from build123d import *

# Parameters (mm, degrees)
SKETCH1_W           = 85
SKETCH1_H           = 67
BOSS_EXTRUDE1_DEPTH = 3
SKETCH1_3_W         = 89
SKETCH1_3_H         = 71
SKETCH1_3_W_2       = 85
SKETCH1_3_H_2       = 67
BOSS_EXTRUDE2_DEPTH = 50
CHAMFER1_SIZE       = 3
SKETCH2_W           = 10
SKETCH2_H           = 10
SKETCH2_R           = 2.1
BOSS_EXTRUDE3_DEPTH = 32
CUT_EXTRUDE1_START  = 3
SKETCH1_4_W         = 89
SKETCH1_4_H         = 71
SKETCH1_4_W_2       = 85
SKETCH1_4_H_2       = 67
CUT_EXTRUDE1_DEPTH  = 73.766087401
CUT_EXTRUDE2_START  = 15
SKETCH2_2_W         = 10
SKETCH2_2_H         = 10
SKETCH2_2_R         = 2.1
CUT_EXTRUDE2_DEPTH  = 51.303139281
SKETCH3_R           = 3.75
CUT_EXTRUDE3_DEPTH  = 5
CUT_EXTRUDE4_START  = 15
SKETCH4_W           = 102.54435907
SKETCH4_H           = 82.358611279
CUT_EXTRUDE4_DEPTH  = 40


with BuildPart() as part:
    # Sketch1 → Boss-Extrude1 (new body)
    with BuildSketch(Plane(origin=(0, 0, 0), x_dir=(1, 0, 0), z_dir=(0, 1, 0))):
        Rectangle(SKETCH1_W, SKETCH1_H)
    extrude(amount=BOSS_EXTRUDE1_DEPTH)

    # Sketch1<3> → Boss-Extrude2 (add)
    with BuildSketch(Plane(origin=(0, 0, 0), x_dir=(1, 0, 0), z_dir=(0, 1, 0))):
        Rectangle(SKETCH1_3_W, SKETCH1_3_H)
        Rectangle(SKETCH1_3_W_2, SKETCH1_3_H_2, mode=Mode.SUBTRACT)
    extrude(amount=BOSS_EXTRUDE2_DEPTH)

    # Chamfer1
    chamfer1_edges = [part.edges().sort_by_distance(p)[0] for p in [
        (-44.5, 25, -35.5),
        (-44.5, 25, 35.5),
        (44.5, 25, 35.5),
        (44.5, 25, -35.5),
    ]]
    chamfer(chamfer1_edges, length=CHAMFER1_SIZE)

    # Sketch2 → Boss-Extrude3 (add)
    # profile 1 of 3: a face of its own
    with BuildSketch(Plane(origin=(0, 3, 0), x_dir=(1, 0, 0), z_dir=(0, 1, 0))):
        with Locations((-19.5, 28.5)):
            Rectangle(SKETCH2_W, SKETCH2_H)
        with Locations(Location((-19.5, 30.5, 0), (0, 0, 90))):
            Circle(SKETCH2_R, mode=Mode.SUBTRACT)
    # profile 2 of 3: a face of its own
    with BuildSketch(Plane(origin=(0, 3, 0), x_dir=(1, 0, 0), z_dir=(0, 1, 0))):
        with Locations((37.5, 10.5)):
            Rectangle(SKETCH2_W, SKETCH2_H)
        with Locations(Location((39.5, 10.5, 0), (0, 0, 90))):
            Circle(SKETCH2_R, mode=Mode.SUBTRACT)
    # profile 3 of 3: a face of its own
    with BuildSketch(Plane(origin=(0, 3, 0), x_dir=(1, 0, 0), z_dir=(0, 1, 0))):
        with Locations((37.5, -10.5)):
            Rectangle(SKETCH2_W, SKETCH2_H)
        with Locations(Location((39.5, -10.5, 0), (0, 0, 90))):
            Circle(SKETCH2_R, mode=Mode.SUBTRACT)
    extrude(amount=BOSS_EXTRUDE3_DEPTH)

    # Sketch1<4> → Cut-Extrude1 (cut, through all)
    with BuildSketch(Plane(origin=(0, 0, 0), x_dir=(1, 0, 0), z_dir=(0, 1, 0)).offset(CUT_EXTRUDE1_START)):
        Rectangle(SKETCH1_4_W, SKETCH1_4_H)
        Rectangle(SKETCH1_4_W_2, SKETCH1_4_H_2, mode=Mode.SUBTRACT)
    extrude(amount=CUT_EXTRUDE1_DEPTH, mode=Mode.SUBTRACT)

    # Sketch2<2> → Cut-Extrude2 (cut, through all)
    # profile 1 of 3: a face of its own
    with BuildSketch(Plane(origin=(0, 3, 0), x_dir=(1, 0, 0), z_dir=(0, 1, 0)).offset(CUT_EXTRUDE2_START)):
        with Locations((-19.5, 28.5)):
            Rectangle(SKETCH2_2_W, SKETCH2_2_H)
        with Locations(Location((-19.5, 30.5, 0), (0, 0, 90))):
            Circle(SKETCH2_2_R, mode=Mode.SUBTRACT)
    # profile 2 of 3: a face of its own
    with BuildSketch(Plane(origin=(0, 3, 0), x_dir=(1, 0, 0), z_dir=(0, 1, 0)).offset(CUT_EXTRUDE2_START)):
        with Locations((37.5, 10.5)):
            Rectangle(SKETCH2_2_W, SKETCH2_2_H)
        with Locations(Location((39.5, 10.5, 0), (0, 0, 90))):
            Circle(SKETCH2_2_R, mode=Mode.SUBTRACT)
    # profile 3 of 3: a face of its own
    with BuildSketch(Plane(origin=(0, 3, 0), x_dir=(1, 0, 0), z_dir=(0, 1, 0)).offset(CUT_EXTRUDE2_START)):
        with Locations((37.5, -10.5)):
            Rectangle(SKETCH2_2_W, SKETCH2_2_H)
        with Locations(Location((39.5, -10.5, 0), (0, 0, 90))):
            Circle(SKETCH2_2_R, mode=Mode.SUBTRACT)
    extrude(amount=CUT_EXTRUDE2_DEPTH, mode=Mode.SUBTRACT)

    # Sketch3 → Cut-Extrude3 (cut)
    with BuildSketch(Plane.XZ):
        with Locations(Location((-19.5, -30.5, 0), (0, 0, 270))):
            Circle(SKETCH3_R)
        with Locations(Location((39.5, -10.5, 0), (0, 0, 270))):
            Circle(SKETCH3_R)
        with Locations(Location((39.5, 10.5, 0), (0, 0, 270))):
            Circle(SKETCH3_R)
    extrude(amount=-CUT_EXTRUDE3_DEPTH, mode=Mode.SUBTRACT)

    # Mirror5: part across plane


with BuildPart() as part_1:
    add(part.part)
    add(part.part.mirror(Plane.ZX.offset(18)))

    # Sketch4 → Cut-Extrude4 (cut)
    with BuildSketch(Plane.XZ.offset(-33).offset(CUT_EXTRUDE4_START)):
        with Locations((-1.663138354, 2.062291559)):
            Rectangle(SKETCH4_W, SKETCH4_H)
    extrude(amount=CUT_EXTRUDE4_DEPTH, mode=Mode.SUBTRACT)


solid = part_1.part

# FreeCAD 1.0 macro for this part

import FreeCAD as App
import Part
import Sketcher


def edges_at(feature, points):
    """Names of the edges that pass closest to the given points."""
    edges = feature.Shape.Edges
    near = lambda p: min(range(len(edges)), key=lambda i: edges[i].distToShape(Part.Vertex(*p))[0])
    return sorted({f"Edge{near(p) + 1}" for p in points})


def add_polygon(sketch, points):
    """Adds a closed chain of lines whose ends are joined by coincident constraints."""
    first, n = sketch.GeometryCount, len(points)
    for a, b in zip(points, points[1:] + points[:1]):
        sketch.addGeometry(Part.LineSegment(App.Vector(*a, 0), App.Vector(*b, 0)), False)
    for i in range(n):
        sketch.addConstraint(Sketcher.Constraint("Coincident", first + i, 2, first + (i + 1) % n, 1))

doc = App.newDocument("Part")
body = doc.addObject("PartDesign::Body", "Body")

# Sketch on XZ plane
sketch1 = body.newObject("Sketcher::SketchObject", "Sketch")
sketch1.AttachmentSupport = (doc.getObject("XZ_Plane"), [""])
sketch1.MapMode = "FlatFace"
add_polygon(sketch1, [(-42.5, -33.5), (-42.5, 33.5), (42.5, 33.5), (42.5, -33.5)])  # lines 0-3
sketch1.addConstraint([
    Sketcher.Constraint("Vertical", 0),
    Sketcher.Constraint("Horizontal", 1),
    Sketcher.Constraint("Vertical", 2),
    Sketcher.Constraint("Horizontal", 3),
    Sketcher.Constraint("Symmetric", 0, 2, 2, 2, -1, 1),
    Sketcher.Constraint("DistanceX", 1, 1, 1, 2, 85.0),
    Sketcher.Constraint("DistanceY", 0, 1, 0, 2, 67.0),
])
pad1 = body.newObject("PartDesign::Pad", "Pad")
pad1.Profile = sketch1
pad1.Length = 3
pad1.Reversed = True

# Sketch on XZ plane
sketch2 = body.newObject("Sketcher::SketchObject", "Sketch001")
sketch2.AttachmentSupport = (doc.getObject("XZ_Plane"), [""])
sketch2.MapMode = "FlatFace"
add_polygon(sketch2, [(-44.5, -35.5), (-44.5, 35.5), (44.5, 35.5), (44.5, -35.5)])  # lines 0-3
add_polygon(sketch2, [(42.5, 33.5), (-42.5, 33.5), (-42.5, -33.5), (42.5, -33.5)])  # lines 4-7
sketch2.addConstraint([
    Sketcher.Constraint("Vertical", 0),
    Sketcher.Constraint("Horizontal", 1),
    Sketcher.Constraint("Vertical", 2),
    Sketcher.Constraint("Horizontal", 3),
    Sketcher.Constraint("Horizontal", 4),
    Sketcher.Constraint("Vertical", 5),
    Sketcher.Constraint("Horizontal", 6),
    Sketcher.Constraint("Vertical", 7),
    Sketcher.Constraint("Symmetric", 0, 2, 2, 2, -1, 1),
    Sketcher.Constraint("Symmetric", 4, 2, 6, 2, -1, 1),
    Sketcher.Constraint("DistanceX", 1, 1, 1, 2, 89.0),
    Sketcher.Constraint("DistanceX", 4, 2, 4, 1, 85.0),
    Sketcher.Constraint("DistanceY", 0, 1, 0, 2, 71.0),
    Sketcher.Constraint("DistanceY", 5, 2, 5, 1, 67.0),
])
pad2 = body.newObject("PartDesign::Pad", "Pad001")
pad2.Profile = sketch2
pad2.Length = 50
pad2.Reversed = True
doc.recompute()

chamfer = body.newObject("PartDesign::Chamfer", "Chamfer")
chamfer.Base = (pad2, edges_at(pad2, [
    (-44.5, 25, -35.5),
    (-44.5, 25, 35.5),
    (44.5, 25, 35.5),
    (44.5, 25, -35.5),
]))
chamfer.Size = 3

# Sketch on XZ plane
sketch3 = body.newObject("Sketcher::SketchObject", "Sketch002")
sketch3.AttachmentSupport = (doc.getObject("XZ_Plane"), [""])
sketch3.MapMode = "FlatFace"
sketch3.AttachmentOffset = App.Placement(App.Vector(0, 0, -3), App.Rotation())
add_polygon(sketch3, [(-24.5, -33.5), (-24.5, -23.5), (-14.5, -23.5), (-14.5, -33.5)])  # lines 0-3
sketch3.addGeometry(Part.Circle(App.Vector(-19.5, -30.5, 0), App.Vector(0, 0, 1), 2.1), False)  # 4
add_polygon(sketch3, [(32.5, -15.5), (32.5, -5.5), (42.5, -5.5), (42.5, -15.5)])  # lines 5-8
sketch3.addGeometry(Part.Circle(App.Vector(39.5, -10.5, 0), App.Vector(0, 0, 1), 2.1), False)  # 9
add_polygon(sketch3, [(32.5, 5.5), (32.5, 15.5), (42.5, 15.5), (42.5, 5.5)])  # lines 10-13
sketch3.addGeometry(Part.Circle(App.Vector(39.5, 10.5, 0), App.Vector(0, 0, 1), 2.1), False)  # 14
sketch3.addConstraint([
    Sketcher.Constraint("Vertical", 0),
    Sketcher.Constraint("Horizontal", 1),
    Sketcher.Constraint("Vertical", 2),
    Sketcher.Constraint("Horizontal", 3),
    Sketcher.Constraint("Vertical", 5),
    Sketcher.Constraint("Horizontal", 6),
    Sketcher.Constraint("Vertical", 7),
    Sketcher.Constraint("Horizontal", 8),
    Sketcher.Constraint("Vertical", 10),
    Sketcher.Constraint("Horizontal", 11),
    Sketcher.Constraint("Vertical", 12),
    Sketcher.Constraint("Horizontal", 13),
    Sketcher.Constraint("Equal", 4, 9),
    Sketcher.Constraint("Equal", 9, 14),
    Sketcher.Constraint("Symmetric", 9, 3, 14, 3, -1),
    Sketcher.Constraint("Symmetric", 8, 2, 10, 2, -1),
    Sketcher.Constraint("Symmetric", 6, 2, 12, 2, -1),
    Sketcher.Constraint("Equal", 3, 6),
    Sketcher.Constraint("Equal", 13, 0),
    Sketcher.Constraint("Equal", 2, 5),
    Sketcher.Constraint("Diameter", 4, 4.2),
    Sketcher.Constraint("DistanceX", 1, 1, 1, 2, 10.0),
    Sketcher.Constraint("DistanceX", 4, 3, 9, 3, 59.0),
    Sketcher.Constraint("DistanceY", 4, 3, 9, 3, 20.0),
    Sketcher.Constraint("DistanceY", 9, 3, 14, 3, 21.0),
    Sketcher.Constraint("DistanceX", 0, 2, 4, 3, 5.0),
    Sketcher.Constraint("DistanceY", 4, 3, 0, 2, 7.0),
    Sketcher.Constraint("DistanceX", 5, 2, 9, 3, 7.0),
    Sketcher.Constraint("DistanceY", 9, 3, 5, 2, 5.0),
    Sketcher.Constraint("DistanceX", 4, 3, -1, 1, 19.5),
])
pad3 = body.newObject("PartDesign::Pad", "Pad002")
pad3.Profile = sketch3
pad3.Length = 32
pad3.Reversed = True

# Sketch on XZ plane
sketch4 = body.newObject("Sketcher::SketchObject", "Sketch003")
sketch4.AttachmentSupport = (doc.getObject("XZ_Plane"), [""])
sketch4.MapMode = "FlatFace"
sketch4.AttachmentOffset = App.Placement(App.Vector(0, 0, -3), App.Rotation())
add_polygon(sketch4, [(-44.5, -35.5), (-44.5, 35.5), (44.5, 35.5), (44.5, -35.5)])  # lines 0-3
add_polygon(sketch4, [(42.5, 33.5), (-42.5, 33.5), (-42.5, -33.5), (42.5, -33.5)])  # lines 4-7
sketch4.addConstraint([
    Sketcher.Constraint("Vertical", 0),
    Sketcher.Constraint("Horizontal", 1),
    Sketcher.Constraint("Vertical", 2),
    Sketcher.Constraint("Horizontal", 3),
    Sketcher.Constraint("Horizontal", 4),
    Sketcher.Constraint("Vertical", 5),
    Sketcher.Constraint("Horizontal", 6),
    Sketcher.Constraint("Vertical", 7),
    Sketcher.Constraint("Symmetric", 0, 2, 2, 2, -1, 1),
    Sketcher.Constraint("Symmetric", 4, 2, 6, 2, -1, 1),
    Sketcher.Constraint("DistanceX", 1, 1, 1, 2, 89.0),
    Sketcher.Constraint("DistanceX", 4, 2, 4, 1, 85.0),
    Sketcher.Constraint("DistanceY", 0, 1, 0, 2, 71.0),
    Sketcher.Constraint("DistanceY", 5, 2, 5, 1, 67.0),
])
pocket1 = body.newObject("PartDesign::Pocket", "Pocket")
pocket1.Profile = sketch4
pocket1.Type = "ThroughAll"

# Sketch on XZ plane
sketch5 = body.newObject("Sketcher::SketchObject", "Sketch004")
sketch5.AttachmentSupport = (doc.getObject("XZ_Plane"), [""])
sketch5.MapMode = "FlatFace"
sketch5.AttachmentOffset = App.Placement(App.Vector(0, 0, -18), App.Rotation())
add_polygon(sketch5, [(-24.5, -33.5), (-24.5, -23.5), (-14.5, -23.5), (-14.5, -33.5)])  # lines 0-3
sketch5.addGeometry(Part.Circle(App.Vector(-19.5, -30.5, 0), App.Vector(0, 0, 1), 2.1), False)  # 4
add_polygon(sketch5, [(32.5, -15.5), (32.5, -5.5), (42.5, -5.5), (42.5, -15.5)])  # lines 5-8
sketch5.addGeometry(Part.Circle(App.Vector(39.5, -10.5, 0), App.Vector(0, 0, 1), 2.1), False)  # 9
add_polygon(sketch5, [(32.5, 5.5), (32.5, 15.5), (42.5, 15.5), (42.5, 5.5)])  # lines 10-13
sketch5.addGeometry(Part.Circle(App.Vector(39.5, 10.5, 0), App.Vector(0, 0, 1), 2.1), False)  # 14
sketch5.addConstraint([
    Sketcher.Constraint("Vertical", 0),
    Sketcher.Constraint("Horizontal", 1),
    Sketcher.Constraint("Vertical", 2),
    Sketcher.Constraint("Horizontal", 3),
    Sketcher.Constraint("Vertical", 5),
    Sketcher.Constraint("Horizontal", 6),
    Sketcher.Constraint("Vertical", 7),
    Sketcher.Constraint("Horizontal", 8),
    Sketcher.Constraint("Vertical", 10),
    Sketcher.Constraint("Horizontal", 11),
    Sketcher.Constraint("Vertical", 12),
    Sketcher.Constraint("Horizontal", 13),
    Sketcher.Constraint("Equal", 4, 9),
    Sketcher.Constraint("Equal", 9, 14),
    Sketcher.Constraint("Symmetric", 9, 3, 14, 3, -1),
    Sketcher.Constraint("Symmetric", 8, 2, 10, 2, -1),
    Sketcher.Constraint("Symmetric", 6, 2, 12, 2, -1),
    Sketcher.Constraint("Equal", 3, 6),
    Sketcher.Constraint("Equal", 13, 0),
    Sketcher.Constraint("Equal", 2, 5),
    Sketcher.Constraint("Diameter", 4, 4.2),
    Sketcher.Constraint("DistanceX", 1, 1, 1, 2, 10.0),
    Sketcher.Constraint("DistanceX", 4, 3, 9, 3, 59.0),
    Sketcher.Constraint("DistanceY", 4, 3, 9, 3, 20.0),
    Sketcher.Constraint("DistanceY", 9, 3, 14, 3, 21.0),
    Sketcher.Constraint("DistanceX", 0, 2, 4, 3, 5.0),
    Sketcher.Constraint("DistanceY", 4, 3, 0, 2, 7.0),
    Sketcher.Constraint("DistanceX", 5, 2, 9, 3, 7.0),
    Sketcher.Constraint("DistanceY", 9, 3, 5, 2, 5.0),
    Sketcher.Constraint("DistanceX", 4, 3, -1, 1, 19.5),
])
pocket2 = body.newObject("PartDesign::Pocket", "Pocket001")
pocket2.Profile = sketch5
pocket2.Length = 51.303139

# Sketch on XZ plane
sketch6 = body.newObject("Sketcher::SketchObject", "Sketch005")
sketch6.AttachmentSupport = (doc.getObject("XZ_Plane"), [""])
sketch6.MapMode = "FlatFace"
sketch6.addGeometry([
    Part.Circle(App.Vector(-19.5, -30.5, 0), App.Vector(0, 0, 1), 3.75),
    Part.Circle(App.Vector(39.5, -10.5, 0), App.Vector(0, 0, 1), 3.75),
    Part.Circle(App.Vector(39.5, 10.5, 0), App.Vector(0, 0, 1), 3.75),
], False)
sketch6.addConstraint([
    Sketcher.Constraint("Equal", 0, 1),
    Sketcher.Constraint("Equal", 1, 2),
    Sketcher.Constraint("Symmetric", 1, 3, 2, 3, -1),
    Sketcher.Constraint("Diameter", 0, 7.5),
    Sketcher.Constraint("DistanceX", 0, 3, 1, 3, 59.0),
    Sketcher.Constraint("DistanceY", 0, 3, 1, 3, 20.0),
    Sketcher.Constraint("DistanceY", 1, 3, 2, 3, 21.0),
    Sketcher.Constraint("DistanceX", 0, 3, -1, 1, 19.5),
])
pocket3 = body.newObject("PartDesign::Pocket", "Pocket002")
pocket3.Profile = sketch6
pocket3.Length = 5
body2 = doc.addObject("PartDesign::Body", "Body001")
doc.recompute()

body2.BaseFeature = body
doc.recompute()

mirroring = doc.addObject("Part::Mirroring", "Mirroring")
mirroring.Source = body
mirroring.Base = App.Vector(0, 18, 0)
mirroring.Normal = App.Vector(0, 1, 0)
body3 = doc.addObject("PartDesign::Body", "Body002")
body3.BaseFeature = mirroring
boolean = body2.newObject("PartDesign::Boolean", "Boolean")
boolean.Type = "Fuse"
boolean.addObjects([body3])
doc.recompute()

# Sketch on XZ plane
sketch7 = body2.newObject("Sketcher::SketchObject", "Sketch006")
sketch7.AttachmentSupport = (doc.getObject("XZ_Plane001"), [""])
sketch7.MapMode = "FlatFace"
sketch7.AttachmentOffset = App.Placement(App.Vector(0, 0, -18), App.Rotation())
add_polygon(sketch7, [(-52.935318, 43.241597), (-52.935318, -39.117014), (49.609041, -39.117014), (49.609041, 43.241597)])  # lines 0-3
sketch7.addConstraint([
    Sketcher.Constraint("Vertical", 0),
    Sketcher.Constraint("Horizontal", 1),
    Sketcher.Constraint("Vertical", 2),
    Sketcher.Constraint("Horizontal", 3),
    Sketcher.Constraint("DistanceX", 1, 1, 1, 2, 102.544359),
    Sketcher.Constraint("DistanceY", 0, 2, 0, 1, 82.358611),
    Sketcher.Constraint("DistanceX", -1, 1, 1, 2, 49.609041),
    Sketcher.Constraint("DistanceY", 0, 2, -1, 1, 39.117014),
])
pocket4 = body2.newObject("PartDesign::Pocket", "Pocket003")
pocket4.Profile = sketch7
pocket4.Length = 40
pocket4.Reversed = True
mirroring.Visibility = False

doc.recompute()
